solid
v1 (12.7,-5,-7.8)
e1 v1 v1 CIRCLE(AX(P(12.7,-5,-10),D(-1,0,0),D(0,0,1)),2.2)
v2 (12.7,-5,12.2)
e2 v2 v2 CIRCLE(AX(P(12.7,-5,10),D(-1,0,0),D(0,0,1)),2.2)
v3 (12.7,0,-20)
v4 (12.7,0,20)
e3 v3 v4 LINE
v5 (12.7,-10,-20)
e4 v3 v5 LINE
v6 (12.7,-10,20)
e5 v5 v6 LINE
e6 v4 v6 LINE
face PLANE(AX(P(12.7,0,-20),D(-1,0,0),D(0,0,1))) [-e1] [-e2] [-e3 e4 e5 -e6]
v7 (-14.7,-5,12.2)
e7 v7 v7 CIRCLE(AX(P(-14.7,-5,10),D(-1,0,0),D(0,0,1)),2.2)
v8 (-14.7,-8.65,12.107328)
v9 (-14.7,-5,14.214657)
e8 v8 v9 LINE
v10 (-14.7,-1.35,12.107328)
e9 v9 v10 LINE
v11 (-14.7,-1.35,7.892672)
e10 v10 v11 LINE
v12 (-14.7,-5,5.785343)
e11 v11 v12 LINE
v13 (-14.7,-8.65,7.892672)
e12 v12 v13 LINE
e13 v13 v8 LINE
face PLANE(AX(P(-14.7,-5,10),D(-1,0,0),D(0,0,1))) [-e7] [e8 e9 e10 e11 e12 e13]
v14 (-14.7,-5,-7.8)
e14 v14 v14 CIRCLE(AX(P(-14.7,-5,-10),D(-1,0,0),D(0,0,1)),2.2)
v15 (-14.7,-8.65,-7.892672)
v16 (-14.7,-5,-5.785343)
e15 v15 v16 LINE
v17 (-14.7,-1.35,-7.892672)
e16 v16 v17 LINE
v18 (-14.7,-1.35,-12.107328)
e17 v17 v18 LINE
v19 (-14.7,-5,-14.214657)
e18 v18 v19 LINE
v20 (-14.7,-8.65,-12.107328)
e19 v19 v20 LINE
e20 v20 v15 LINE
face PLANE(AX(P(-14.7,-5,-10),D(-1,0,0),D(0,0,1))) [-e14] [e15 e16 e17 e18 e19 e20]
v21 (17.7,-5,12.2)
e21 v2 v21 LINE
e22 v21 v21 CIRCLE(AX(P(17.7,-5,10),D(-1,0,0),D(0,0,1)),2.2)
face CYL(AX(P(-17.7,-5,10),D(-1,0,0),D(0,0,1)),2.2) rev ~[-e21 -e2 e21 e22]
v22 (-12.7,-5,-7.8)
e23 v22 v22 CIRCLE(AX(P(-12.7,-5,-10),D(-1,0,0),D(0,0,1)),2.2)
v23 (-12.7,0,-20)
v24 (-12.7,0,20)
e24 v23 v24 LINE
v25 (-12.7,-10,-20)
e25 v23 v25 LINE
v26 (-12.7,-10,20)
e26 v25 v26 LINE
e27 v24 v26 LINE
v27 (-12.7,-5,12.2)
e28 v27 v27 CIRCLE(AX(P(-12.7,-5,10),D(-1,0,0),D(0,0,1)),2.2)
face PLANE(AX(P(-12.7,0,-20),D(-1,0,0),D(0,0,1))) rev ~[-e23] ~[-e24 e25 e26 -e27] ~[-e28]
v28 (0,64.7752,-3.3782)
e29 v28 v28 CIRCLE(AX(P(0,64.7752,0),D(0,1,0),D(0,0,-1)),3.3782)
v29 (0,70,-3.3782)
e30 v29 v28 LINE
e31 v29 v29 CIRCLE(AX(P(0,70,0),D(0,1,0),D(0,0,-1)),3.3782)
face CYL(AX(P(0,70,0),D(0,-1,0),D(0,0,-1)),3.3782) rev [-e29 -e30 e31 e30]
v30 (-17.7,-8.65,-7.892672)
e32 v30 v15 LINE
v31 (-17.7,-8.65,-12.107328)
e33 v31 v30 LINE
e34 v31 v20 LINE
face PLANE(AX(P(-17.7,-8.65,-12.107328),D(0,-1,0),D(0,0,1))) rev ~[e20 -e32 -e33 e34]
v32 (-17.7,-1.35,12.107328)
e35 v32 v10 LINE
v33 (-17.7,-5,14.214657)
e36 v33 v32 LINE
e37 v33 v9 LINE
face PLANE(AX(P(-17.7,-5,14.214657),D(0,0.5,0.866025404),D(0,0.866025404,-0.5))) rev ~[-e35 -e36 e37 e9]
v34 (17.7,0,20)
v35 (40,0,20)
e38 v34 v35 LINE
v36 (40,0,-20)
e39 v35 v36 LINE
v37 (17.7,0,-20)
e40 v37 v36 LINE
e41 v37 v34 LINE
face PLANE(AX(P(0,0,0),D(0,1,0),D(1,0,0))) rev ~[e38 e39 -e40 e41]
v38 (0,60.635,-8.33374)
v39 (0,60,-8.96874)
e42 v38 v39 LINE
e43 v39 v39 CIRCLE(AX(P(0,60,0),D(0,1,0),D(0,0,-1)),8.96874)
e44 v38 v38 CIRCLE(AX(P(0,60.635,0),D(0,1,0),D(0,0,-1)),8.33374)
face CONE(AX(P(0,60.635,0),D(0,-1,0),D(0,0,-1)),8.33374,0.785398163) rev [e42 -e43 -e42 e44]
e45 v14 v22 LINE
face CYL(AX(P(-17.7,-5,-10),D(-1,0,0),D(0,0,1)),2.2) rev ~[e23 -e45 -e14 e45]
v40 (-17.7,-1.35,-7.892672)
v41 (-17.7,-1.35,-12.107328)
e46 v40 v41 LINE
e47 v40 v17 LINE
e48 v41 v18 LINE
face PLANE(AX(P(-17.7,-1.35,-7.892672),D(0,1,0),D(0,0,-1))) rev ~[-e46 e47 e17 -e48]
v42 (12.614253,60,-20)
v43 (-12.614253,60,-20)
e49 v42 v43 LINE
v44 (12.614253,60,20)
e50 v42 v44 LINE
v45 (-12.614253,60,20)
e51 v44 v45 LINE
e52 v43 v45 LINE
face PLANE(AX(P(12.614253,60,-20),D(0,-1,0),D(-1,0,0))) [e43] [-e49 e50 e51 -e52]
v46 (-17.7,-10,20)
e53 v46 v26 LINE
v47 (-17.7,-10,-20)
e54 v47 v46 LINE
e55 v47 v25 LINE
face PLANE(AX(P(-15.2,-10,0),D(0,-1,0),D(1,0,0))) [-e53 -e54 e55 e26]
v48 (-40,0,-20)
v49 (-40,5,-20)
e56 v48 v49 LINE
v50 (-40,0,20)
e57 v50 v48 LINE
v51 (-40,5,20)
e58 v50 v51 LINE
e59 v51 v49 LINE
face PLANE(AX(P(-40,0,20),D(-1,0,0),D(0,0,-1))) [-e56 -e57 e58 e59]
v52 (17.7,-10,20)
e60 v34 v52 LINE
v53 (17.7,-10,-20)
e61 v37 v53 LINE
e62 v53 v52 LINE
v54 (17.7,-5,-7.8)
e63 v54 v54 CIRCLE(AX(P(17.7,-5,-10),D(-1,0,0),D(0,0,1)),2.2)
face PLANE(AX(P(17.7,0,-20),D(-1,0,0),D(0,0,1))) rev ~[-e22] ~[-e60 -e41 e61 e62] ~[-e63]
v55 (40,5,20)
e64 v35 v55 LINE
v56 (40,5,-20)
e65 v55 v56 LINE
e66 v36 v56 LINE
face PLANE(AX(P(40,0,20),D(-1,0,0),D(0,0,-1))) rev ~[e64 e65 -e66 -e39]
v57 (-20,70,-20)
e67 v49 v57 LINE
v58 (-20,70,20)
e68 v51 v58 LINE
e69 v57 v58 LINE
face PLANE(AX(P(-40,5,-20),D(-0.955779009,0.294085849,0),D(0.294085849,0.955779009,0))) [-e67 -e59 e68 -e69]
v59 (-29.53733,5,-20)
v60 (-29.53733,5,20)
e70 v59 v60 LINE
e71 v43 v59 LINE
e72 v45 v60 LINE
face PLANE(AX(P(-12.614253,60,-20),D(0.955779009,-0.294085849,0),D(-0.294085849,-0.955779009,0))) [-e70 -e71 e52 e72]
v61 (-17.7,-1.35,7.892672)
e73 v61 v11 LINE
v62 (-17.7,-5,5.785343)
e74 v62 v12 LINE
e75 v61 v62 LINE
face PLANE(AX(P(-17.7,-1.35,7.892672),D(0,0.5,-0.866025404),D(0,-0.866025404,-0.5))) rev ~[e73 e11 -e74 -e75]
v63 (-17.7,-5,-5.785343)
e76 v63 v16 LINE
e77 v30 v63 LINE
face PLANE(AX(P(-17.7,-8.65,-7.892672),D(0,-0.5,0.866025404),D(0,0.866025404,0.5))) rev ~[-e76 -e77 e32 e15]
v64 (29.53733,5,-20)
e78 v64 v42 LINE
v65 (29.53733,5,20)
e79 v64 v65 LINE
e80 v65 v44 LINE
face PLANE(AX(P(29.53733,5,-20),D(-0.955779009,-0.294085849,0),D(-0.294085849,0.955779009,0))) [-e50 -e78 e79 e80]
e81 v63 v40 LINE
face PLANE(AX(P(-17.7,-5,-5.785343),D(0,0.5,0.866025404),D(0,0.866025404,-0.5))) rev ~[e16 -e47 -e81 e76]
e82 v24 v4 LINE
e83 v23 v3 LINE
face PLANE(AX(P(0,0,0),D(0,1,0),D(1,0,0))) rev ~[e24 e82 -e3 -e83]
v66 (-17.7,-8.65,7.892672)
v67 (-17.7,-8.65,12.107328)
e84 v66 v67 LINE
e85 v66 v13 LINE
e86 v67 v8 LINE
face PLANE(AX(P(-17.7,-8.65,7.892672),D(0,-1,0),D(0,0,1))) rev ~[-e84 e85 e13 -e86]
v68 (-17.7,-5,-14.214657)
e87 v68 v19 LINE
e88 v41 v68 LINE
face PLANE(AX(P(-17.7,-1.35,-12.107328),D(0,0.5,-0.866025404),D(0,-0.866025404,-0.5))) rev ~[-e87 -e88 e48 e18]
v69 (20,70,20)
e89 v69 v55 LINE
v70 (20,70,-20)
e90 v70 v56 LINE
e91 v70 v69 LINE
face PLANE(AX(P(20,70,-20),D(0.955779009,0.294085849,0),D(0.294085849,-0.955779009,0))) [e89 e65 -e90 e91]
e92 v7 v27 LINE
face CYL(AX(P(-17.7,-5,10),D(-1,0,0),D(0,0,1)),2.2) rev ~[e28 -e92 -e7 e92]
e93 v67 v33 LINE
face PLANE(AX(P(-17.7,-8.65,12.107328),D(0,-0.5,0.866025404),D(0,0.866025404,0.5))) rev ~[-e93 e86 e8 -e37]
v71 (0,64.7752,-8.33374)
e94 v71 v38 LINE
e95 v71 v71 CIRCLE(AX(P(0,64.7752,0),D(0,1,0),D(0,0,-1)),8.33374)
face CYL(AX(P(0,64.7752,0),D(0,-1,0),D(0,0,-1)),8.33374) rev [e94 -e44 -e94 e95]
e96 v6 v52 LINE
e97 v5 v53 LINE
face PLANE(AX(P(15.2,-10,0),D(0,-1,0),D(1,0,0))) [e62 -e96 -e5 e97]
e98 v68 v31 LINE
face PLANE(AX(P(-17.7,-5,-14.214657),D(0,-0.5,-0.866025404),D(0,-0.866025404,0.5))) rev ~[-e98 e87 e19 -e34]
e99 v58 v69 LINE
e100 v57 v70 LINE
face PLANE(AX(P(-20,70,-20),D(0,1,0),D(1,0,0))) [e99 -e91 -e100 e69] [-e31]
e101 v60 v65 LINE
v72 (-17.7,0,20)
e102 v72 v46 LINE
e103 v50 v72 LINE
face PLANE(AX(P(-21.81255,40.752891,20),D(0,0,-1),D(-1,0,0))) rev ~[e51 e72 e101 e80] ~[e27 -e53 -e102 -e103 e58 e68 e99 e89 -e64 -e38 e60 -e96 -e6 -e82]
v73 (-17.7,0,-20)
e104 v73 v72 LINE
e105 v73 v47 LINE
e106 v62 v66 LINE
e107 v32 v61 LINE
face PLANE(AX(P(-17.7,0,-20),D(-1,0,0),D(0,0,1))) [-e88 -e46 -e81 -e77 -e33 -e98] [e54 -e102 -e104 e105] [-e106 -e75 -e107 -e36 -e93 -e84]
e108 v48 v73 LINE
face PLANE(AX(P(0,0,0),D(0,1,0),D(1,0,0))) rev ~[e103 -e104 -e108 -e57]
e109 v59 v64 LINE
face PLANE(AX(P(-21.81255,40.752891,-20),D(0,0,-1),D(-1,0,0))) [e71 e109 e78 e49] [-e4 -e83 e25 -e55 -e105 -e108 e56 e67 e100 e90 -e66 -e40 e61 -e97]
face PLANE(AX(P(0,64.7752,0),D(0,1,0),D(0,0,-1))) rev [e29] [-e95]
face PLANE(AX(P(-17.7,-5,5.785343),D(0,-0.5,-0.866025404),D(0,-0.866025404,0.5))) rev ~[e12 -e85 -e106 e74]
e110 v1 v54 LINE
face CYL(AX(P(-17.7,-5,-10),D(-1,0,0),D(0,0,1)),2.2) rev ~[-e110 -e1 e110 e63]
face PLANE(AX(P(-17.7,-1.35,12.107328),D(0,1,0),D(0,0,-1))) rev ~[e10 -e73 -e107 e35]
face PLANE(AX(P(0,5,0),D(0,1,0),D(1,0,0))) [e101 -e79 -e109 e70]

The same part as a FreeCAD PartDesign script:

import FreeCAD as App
import Part
import Sketcher
from FreeCAD import Vector
Q = App.Units.Quantity


def add_polygon(sketch, points):
    """Adds a closed chain of lines whose ends are joined by coincident constraints."""
    first, n = sketch.GeometryCount, len(points)
    for a, b in zip(points, points[1:] + points[:1]):
        sketch.addGeometry(Part.LineSegment(App.Vector(*a, 0), App.Vector(*b, 0)), False)
    for i in range(n):
        sketch.addConstraint(Sketcher.Constraint("Coincident", first + i, 2, first + (i + 1) % n, 1))

doc = App.newDocument("Part")
params = doc.addObject("Spreadsheet::Sheet", "Params")
for row, (alias, value) in enumerate([
    ("sketch1_width", "80 mm"),
    ("sketch1_height", "40 mm"),
    ("pad1_length", "5 mm"),
    ("sketch2_width", "5 mm"),
    ("sketch2_height", "40 mm"),
    ("pad2_length", "10 mm"),
    ("sketch3_diameter", "4.4 mm"),
    ("pocket2_length", "3 mm"),
    ("sketch5_width", "40 mm"),
    ("pad3_length", "40 mm"),
    ("sketch6_width", "10 mm"),
    ("groove_angle", "360 deg"),
], start=1):
    params.set(f"A{row}", alias)
    params.set(f"B{row}", "=" + value)
    params.setAlias(f"B{row}", alias)

body = doc.addObject("PartDesign::Body", "Body")

# Sketch on XZ plane
sketch1 = doc.addObject("Sketcher::SketchObject", "Sketch")
body.addObject(sketch1)
sketch1.AttachmentSupport = (doc.XZ_Plane, [""])
sketch1.MapMode = "FlatFace"
add_polygon(sketch1, [(-40, -20), (-40, 20), (40, 20), (40, -20)])  # lines 0-3
sketch1.addConstraint([
    Sketcher.Constraint("Vertical", 0),
    Sketcher.Constraint("Horizontal", 1),
    Sketcher.Constraint("Vertical", 2),
    Sketcher.Constraint("Horizontal", 3),
    Sketcher.Constraint("Symmetric", 0, 2, 2, 2, -1, 1),
    Sketcher.Constraint("DistanceX", 1, 1, 1, 2, 80.0),
    Sketcher.Constraint("DistanceY", 0, 1, 0, 2, 40.0),
])
sketch1.setExpression("Constraints[9]", "Params.sketch1_width")
sketch1.setExpression("Constraints[10]", "Params.sketch1_height")
pad1 = doc.addObject("PartDesign::Pad", "Pad")
body.addObject(pad1)
pad1.Profile = sketch1
pad1.setExpression("Length", "Params.pad1_length")
pad1.Reversed = True

# Sketch on XZ plane
sketch2 = doc.addObject("Sketcher::SketchObject", "Sketch001")
body.addObject(sketch2)
sketch2.AttachmentSupport = (doc.XZ_Plane, [""])
sketch2.MapMode = "FlatFace"
add_polygon(sketch2, [(13, 20), (13, -20), (18, -20), (18, 20)])  # lines 0-3
add_polygon(sketch2, [(-18, 20), (-18, -20), (-13, -20), (-13, 20)])  # lines 4-7
sketch2.addConstraint([
    Sketcher.Constraint("Vertical", 0),
    Sketcher.Constraint("Horizontal", 1),
    Sketcher.Constraint("Vertical", 2),
    Sketcher.Constraint("Horizontal", 3),
    Sketcher.Constraint("Vertical", 4),
    Sketcher.Constraint("Horizontal", 5),
    Sketcher.Constraint("Vertical", 6),
    Sketcher.Constraint("Horizontal", 7),
    Sketcher.Constraint("Symmetric", 2, 2, 4, 2, -1, 1),
    Sketcher.Constraint("Symmetric", 0, 2, 6, 2, -1, 1),
    Sketcher.Constraint("Horizontal", 1, 2, 4, 2),
    Sketcher.Constraint("DistanceX", 1, 1, 1, 2, 5.0),
    Sketcher.Constraint("DistanceY", 0, 2, 0, 1, 40.0),
    Sketcher.Constraint("DistanceX", -1, 1, 0, 2, 12.7),
])
sketch2.setExpression("Constraints[19]", "Params.sketch2_width")
sketch2.setExpression("Constraints[20]", "Params.sketch2_height")
pad2 = doc.addObject("PartDesign::Pad", "Pad001")
body.addObject(pad2)
pad2.Profile = sketch2
pad2.setExpression("Length", "Params.pad2_length")

# Sketch on YZ plane
sketch3 = doc.addObject("Sketcher::SketchObject", "Sketch002")
body.addObject(sketch3)
sketch3.AttachmentSupport = (doc.YZ_Plane, [""])
sketch3.MapMode = "FlatFace"
sketch3.AttachmentOffset = App.Placement(Vector(0, 0, -17.7), App.Rotation())
sketch3.addGeometry([
    Part.Circle(Vector(-5, -10, 0), Vector(0, 0, 1), 2.2),
    Part.Circle(Vector(-5, 10, 0), Vector(0, 0, 1), 2.2),
], False)
sketch3.addConstraint([
    Sketcher.Constraint("Equal", 0, 1),
    Sketcher.Constraint("Symmetric", 0, 3, 1, 3, -1),
    Sketcher.Constraint("Diameter", 0, 4.4),
    Sketcher.Constraint("DistanceX", 0, 3, -1, 1, 5.0),
    Sketcher.Constraint("DistanceY", 0, 3, -1, 1, 10.0),
])
sketch3.setExpression("Constraints[2]", "Params.sketch3_diameter")
pocket1 = doc.addObject("PartDesign::Pocket", "Pocket")
body.addObject(pocket1)
pocket1.Profile = sketch3
pocket1.Type = "ThroughAll"
pocket1.Reversed = True

# Sketch on YZ plane
sketch4 = doc.addObject("Sketcher::SketchObject", "Sketch003")
body.addObject(sketch4)
sketch4.AttachmentSupport = (doc.YZ_Plane, [""])
sketch4.MapMode = "FlatFace"
sketch4.AttachmentOffset = App.Placement(Vector(0, 0, -17.7), App.Rotation())
add_polygon(sketch4, [(-1.4, -7.9), (-1.4, -12.1), (-5, -14.2), (-8.7, -12.1), (-8.7, -7.9), (-5, -5.8)])  # lines 0-5
add_polygon(sketch4, [(-1.4, 12.1), (-1.4, 7.9), (-5, 5.8), (-8.7, 7.9), (-8.7, 12.1), (-5, 14.2)])  # lines 6-11
sketch4.addConstraint([
    Sketcher.Constraint("Vertical", 0),
    Sketcher.Constraint("Vertical", 3),
    Sketcher.Constraint("Vertical", 6),
    Sketcher.Constraint("Vertical", 9),
    Sketcher.Constraint("Symmetric", 5, 2, 6, 2, -1),
    Sketcher.Constraint("Symmetric", 4, 2, 7, 2, -1),
    Sketcher.Constraint("Symmetric", 3, 2, 8, 2, -1),
    Sketcher.Constraint("Symmetric", 1, 2, 10, 2, -1),
    Sketcher.Constraint("Parallel", 1, 4),
    Sketcher.Constraint("Parallel", 2, 5),
    Sketcher.Constraint("Parallel", 4, 7),
    Sketcher.Constraint("Parallel", 7, 10),
    Sketcher.Constraint("Parallel", 8, 11),
    Sketcher.Constraint("Horizontal", 0, 2, 2, 2),
    Sketcher.Constraint("Horizontal", 3, 2, 5, 2),
    Sketcher.Constraint("Angle", 1, Q("-150 deg")),
    Sketcher.Constraint("DistanceX", 1, 2, -1, 1, 5.0),
    Sketcher.Constraint("DistanceY", 0, 2, 6, 2, 20.0),
    Sketcher.Constraint("DistanceX", 2, 2, 0, 2, 7.3),
    Sketcher.Constraint("DistanceY", 0, 2, 0, 1, 4.214657),
])
pocket2 = doc.addObject("PartDesign::Pocket", "Pocket001")
body.addObject(pocket2)
pocket2.Profile = sketch4
pocket2.setExpression("Length", "Params.pocket2_length")
pocket2.Reversed = True

# Sketch on XY plane
sketch5 = doc.addObject("Sketcher::SketchObject", "Sketch004")
body.addObject(sketch5)
sketch5.AttachmentSupport = (doc.XY_Plane, [""])
sketch5.MapMode = "FlatFace"
sketch5.AttachmentOffset = App.Placement(Vector(0, 0, -20), App.Rotation())
add_polygon(sketch5, [(-13, 60), (-30, 5), (-40, 5), (-20, 70), (20, 70), (40, 5), (30, 5), (13, 60)])  # lines 0-7
sketch5.addConstraint([
    Sketcher.Constraint("Horizontal", 1),
    Sketcher.Constraint("Horizontal", 3),
    Sketcher.Constraint("Horizontal", 5),
    Sketcher.Constraint("Horizontal", 7),
    Sketcher.Constraint("Symmetric", 1, 2, 4, 2, -2),
    Sketcher.Constraint("Parallel", 0, 2),
    Sketcher.Constraint("Parallel", 4, 6),
    Sketcher.Constraint("Equal", 1, 5),
    Sketcher.Constraint("Equal", 2, 4),
    Sketcher.Constraint("DistanceX", 3, 1, 3, 2, 40.0),
    Sketcher.Constraint("DistanceY", -1, 1, 0, 2, 5.0),
    Sketcher.Constraint("DistanceX", 1, 2, -1, 1, 40.0),
    Sketcher.Constraint("DistanceY", -1, 1, 2, 2, 70.0),
    Sketcher.Constraint("DistanceY", -1, 1, 6, 2, 60.0),
    Sketcher.Constraint("DistanceX", 1, 2, 1, 1, 10.46267),
])
sketch5.setExpression("Constraints[17]", "Params.sketch5_width")
pad3 = doc.addObject("PartDesign::Pad", "Pad002")
body.addObject(pad3)
pad3.Profile = sketch5
pad3.setExpression("Length", "Params.pad3_length")

# Sketch on YZ plane
sketch6 = doc.addObject("Sketcher::SketchObject", "Sketch005")
body.addObject(sketch6)
sketch6.AttachmentSupport = (doc.YZ_Plane, [""])
sketch6.MapMode = "FlatFace"
add_polygon(sketch6, [(70, 0), (60, 0), (60, -9), (60.6, -8.3), (64.8, -8.3), (64.8, -3.4), (70, -3.4)])  # lines 0-6
sketch6.addConstraint([
    Sketcher.Constraint("Horizontal", 0),
    Sketcher.Constraint("Vertical", 1),
    Sketcher.Constraint("Horizontal", 3),
    Sketcher.Constraint("Vertical", 4),
    Sketcher.Constraint("Horizontal", 5),
    Sketcher.Constraint("Vertical", 6),
    Sketcher.Constraint("PointOnObject", 0, 2, -1),
    Sketcher.Constraint("DistanceX", 0, 2, 0, 1, 10.0),
    Sketcher.Constraint("Angle", 2, Q("45 deg")),
    Sketcher.Constraint("DistanceX", -1, 1, 0, 2, 60.0),
    Sketcher.Constraint("DistanceX", 3, 1, 3, 2, 4.1402),
    Sketcher.Constraint("DistanceX", 5, 1, 5, 2, 5.2248),
    Sketcher.Constraint("DistanceY", 6, 1, 6, 2, 3.3782),
    Sketcher.Constraint("DistanceY", 1, 2, 1, 1, 8.96874),
])
sketch6.setExpression("Constraints[14]", "Params.sketch6_width")
groove = doc.addObject("PartDesign::Groove", "Groove")
body.addObject(groove)
groove.Profile = sketch6
groove.ReferenceAxis = (sketch6, ["H_Axis"])
groove.setExpression("Angle", "Params.groove_angle")

doc.recompute()
